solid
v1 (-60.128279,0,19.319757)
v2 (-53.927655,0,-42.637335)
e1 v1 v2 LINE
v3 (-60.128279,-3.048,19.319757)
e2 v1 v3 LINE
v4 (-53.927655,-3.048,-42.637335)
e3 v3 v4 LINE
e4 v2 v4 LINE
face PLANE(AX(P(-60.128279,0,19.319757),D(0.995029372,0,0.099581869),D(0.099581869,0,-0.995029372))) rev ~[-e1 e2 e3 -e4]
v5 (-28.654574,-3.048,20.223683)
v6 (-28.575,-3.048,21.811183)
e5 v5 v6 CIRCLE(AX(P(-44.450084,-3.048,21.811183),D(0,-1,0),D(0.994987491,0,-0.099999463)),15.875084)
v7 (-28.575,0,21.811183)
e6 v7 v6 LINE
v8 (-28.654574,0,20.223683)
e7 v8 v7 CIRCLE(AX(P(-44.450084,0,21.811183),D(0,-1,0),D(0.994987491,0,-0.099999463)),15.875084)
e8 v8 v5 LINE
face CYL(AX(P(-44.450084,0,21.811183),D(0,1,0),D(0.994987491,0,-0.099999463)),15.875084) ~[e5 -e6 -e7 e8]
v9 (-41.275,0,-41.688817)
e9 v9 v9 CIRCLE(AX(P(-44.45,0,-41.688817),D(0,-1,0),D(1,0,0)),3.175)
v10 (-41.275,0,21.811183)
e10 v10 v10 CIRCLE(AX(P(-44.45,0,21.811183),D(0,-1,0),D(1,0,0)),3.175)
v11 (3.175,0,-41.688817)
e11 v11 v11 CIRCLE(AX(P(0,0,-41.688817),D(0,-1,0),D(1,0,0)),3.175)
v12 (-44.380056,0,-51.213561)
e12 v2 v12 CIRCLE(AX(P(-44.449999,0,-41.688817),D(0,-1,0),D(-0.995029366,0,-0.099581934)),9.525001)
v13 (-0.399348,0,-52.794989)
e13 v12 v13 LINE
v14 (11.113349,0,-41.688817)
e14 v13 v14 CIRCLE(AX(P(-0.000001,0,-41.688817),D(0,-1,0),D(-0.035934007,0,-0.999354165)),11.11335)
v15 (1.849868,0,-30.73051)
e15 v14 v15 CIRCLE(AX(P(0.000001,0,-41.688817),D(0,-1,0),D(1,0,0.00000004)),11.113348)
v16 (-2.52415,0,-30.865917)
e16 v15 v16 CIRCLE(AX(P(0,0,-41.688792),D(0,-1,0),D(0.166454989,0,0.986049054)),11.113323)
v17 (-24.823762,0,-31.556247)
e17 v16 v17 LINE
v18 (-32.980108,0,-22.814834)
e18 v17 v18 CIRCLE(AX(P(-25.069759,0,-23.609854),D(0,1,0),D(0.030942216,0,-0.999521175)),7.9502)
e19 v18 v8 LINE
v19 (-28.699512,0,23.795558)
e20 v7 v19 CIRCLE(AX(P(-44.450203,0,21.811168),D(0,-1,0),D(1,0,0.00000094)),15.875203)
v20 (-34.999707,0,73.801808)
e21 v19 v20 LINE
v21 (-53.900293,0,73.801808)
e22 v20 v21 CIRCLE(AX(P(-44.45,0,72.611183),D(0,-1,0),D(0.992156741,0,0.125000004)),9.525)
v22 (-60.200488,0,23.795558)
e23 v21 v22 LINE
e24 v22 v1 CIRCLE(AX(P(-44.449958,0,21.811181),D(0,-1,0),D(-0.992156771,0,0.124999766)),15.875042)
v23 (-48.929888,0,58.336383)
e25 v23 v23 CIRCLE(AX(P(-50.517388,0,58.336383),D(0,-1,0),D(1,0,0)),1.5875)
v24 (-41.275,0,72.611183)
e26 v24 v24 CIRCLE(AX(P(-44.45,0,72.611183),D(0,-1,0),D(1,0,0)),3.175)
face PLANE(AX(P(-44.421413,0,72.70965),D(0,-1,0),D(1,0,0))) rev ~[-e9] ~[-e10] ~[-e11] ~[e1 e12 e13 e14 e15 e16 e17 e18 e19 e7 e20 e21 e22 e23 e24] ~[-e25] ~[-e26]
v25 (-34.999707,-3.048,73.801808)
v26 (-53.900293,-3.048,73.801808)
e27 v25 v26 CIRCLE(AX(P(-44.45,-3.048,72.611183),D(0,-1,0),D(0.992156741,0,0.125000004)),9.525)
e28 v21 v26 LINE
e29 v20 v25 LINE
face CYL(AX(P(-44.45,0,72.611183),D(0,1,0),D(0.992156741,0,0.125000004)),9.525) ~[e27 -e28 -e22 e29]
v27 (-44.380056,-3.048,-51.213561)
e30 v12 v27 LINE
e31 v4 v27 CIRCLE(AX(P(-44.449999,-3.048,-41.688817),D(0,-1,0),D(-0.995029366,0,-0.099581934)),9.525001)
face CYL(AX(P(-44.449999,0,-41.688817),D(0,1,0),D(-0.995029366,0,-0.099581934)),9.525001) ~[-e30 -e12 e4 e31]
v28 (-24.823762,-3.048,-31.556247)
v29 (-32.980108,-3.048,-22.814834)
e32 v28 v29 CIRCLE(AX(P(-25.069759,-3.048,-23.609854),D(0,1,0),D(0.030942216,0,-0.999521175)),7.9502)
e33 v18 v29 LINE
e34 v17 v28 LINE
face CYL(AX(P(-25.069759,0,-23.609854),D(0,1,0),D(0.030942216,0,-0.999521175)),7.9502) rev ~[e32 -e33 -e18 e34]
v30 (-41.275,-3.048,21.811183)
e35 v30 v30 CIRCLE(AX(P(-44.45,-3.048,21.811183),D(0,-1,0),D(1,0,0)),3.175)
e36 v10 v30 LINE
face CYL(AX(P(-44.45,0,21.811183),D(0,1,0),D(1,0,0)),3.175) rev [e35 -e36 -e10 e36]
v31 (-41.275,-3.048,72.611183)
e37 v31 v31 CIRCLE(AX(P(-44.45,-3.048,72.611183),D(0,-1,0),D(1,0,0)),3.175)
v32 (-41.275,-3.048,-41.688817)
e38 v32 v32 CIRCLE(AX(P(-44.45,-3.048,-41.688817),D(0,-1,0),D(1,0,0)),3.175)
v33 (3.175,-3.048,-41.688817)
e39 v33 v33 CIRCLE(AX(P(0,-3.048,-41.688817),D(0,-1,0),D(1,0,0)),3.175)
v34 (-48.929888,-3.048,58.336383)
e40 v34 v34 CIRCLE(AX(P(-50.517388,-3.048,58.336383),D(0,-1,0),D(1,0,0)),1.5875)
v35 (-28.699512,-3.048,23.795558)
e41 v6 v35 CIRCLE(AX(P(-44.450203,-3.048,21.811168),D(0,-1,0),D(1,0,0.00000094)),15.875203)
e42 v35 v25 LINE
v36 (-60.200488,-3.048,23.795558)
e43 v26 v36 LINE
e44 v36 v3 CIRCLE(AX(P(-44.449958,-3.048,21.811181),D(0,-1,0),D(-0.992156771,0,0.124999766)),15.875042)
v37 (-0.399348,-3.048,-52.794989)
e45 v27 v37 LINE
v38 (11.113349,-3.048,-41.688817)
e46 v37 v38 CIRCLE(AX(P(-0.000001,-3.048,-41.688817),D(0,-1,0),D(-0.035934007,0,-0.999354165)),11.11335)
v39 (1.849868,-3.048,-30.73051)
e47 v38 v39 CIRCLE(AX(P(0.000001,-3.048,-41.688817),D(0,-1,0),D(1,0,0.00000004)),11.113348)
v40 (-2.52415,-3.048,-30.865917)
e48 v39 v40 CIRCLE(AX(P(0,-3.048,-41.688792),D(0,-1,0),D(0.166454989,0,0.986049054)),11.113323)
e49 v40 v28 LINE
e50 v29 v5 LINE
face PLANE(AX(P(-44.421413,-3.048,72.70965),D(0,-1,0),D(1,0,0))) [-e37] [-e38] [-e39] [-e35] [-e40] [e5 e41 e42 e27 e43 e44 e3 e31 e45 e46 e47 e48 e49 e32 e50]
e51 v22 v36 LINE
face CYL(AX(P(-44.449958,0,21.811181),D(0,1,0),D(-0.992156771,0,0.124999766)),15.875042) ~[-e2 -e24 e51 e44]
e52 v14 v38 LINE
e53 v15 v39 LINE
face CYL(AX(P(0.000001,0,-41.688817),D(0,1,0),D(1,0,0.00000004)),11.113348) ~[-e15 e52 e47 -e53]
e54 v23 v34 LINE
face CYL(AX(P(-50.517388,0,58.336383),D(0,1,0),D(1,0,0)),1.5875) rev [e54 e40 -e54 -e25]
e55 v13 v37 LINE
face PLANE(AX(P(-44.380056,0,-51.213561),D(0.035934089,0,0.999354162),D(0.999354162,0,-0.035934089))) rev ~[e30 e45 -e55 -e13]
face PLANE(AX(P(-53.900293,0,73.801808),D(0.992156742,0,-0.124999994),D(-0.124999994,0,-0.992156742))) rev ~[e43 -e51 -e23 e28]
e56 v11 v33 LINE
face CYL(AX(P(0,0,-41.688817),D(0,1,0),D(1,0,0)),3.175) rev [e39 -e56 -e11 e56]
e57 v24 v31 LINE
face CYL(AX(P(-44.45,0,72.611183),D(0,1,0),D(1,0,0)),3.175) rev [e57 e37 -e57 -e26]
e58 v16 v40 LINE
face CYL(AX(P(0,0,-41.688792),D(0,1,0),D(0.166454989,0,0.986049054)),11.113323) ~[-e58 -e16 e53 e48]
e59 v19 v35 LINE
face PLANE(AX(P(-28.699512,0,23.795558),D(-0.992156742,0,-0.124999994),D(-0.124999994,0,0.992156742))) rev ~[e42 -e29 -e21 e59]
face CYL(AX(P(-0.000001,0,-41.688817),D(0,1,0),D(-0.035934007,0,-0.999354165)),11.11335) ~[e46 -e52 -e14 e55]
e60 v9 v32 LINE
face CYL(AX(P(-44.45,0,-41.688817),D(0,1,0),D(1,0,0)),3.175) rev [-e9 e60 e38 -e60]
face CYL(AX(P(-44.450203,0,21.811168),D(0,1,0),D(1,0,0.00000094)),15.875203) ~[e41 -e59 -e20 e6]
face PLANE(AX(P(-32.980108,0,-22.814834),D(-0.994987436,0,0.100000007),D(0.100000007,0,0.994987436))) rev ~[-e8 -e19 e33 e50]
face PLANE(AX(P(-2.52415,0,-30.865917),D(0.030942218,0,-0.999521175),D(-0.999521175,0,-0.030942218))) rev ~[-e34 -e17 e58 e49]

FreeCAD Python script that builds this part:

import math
import FreeCAD as App
import Part
import Sketcher
from FreeCAD import Vector
Q = App.Units.Quantity

doc = App.newDocument("Part")
body = doc.addObject("PartDesign::Body", "Body")

sketch1 = body.newObject("Sketcher::SketchObject", "Sketch")
sketch1.AttachmentSupport = (doc.getObject("XZ_Plane"), [""])
sketch1.MapMode = "FlatFace"
sketch1.addGeometry([
    Part.ArcOfCircle(Part.Circle(Vector(-44.45, 72.611183, 0), Vector(0, 0, 1), 9.525), math.radians(7.180756), math.radians(172.819244)),
    Part.LineSegment(Vector(-53.900293, 73.801808, 0), Vector(-60.200488, 23.795558, 0)),
    Part.ArcOfCircle(Part.Circle(Vector(-44.449958, 21.811181, 0), Vector(0, 0, 1), 15.875042), math.radians(172.819258), math.radians(189.029311)),
    Part.LineSegment(Vector(-60.128279, 19.319757, 0), Vector(-53.927655, -42.637335, 0)),
    Part.ArcOfCircle(Part.Circle(Vector(-44.449999, -41.688817, 0), Vector(0, 0, 1), 9.525001), math.radians(-174.284903), math.radians(-89.579265)),
    Part.LineSegment(Vector(-44.380056, -51.213561, 0), Vector(-0.399348, -52.794989, 0)),
    Part.ArcOfCircle(Part.Circle(Vector(-0.000001, -41.688817, 0), Vector(0, 0, 1), 11.11335), math.radians(-92.05931), math.radians(-0.000002)),
    Part.ArcOfCircle(Part.Circle(Vector(0.000001, -41.688817, 0), Vector(0, 0, 1), 11.113348), math.radians(0.000002), math.radians(80.418258)),
    Part.ArcOfCircle(Part.Circle(Vector(0, -41.688792, 0), Vector(0, 0, 1), 11.113323), math.radians(80.418232), math.radians(103.12806)),
    Part.LineSegment(Vector(-2.52415, -30.865917, 0), Vector(-24.823762, -31.556247, 0)),
    Part.ArcOfCircle(Part.Circle(Vector(-25.069759, -23.609854, 0), Vector(0, 0, 1), 7.9502), math.radians(174.260832), math.radians(271.773141)),
    Part.LineSegment(Vector(-32.980108, -22.814834, 0), Vector(-28.654574, 20.223683, 0)),
    Part.ArcOfCircle(Part.Circle(Vector(-44.450084, 21.811183, 0), Vector(0, 0, 1), 15.875084), math.radians(-5.73914), math.radians(0)),
    Part.ArcOfCircle(Part.Circle(Vector(-44.450203, 21.811168, 0), Vector(0, 0, 1), 15.875203), math.radians(0.000054), math.radians(7.180718)),
    Part.LineSegment(Vector(-28.699512, 23.795558, 0), Vector(-34.999707, 73.801808, 0)),
    Part.Circle(Vector(-44.45, -41.688817, 0), Vector(0, 0, 1), 3.175),
    Part.Circle(Vector(0, -41.688817, 0), Vector(0, 0, 1), 3.175),
    Part.Circle(Vector(-44.45, 21.811183, 0), Vector(0, 0, 1), 3.175),
    Part.Circle(Vector(-50.517388, 58.336383, 0), Vector(0, 0, 1), 1.5875),
    Part.Circle(Vector(-44.45, 72.611183, 0), Vector(0, 0, 1), 3.175),
], False)
sketch1.addConstraint([
    Sketcher.Constraint("Coincident", 0, 2, 1, 1),
    Sketcher.Constraint("Coincident", 1, 2, 2, 1),
    Sketcher.Constraint("Coincident", 2, 2, 3, 1),
    Sketcher.Constraint("Coincident", 3, 2, 4, 1),
    Sketcher.Constraint("Coincident", 4, 2, 5, 1),
    Sketcher.Constraint("Coincident", 5, 2, 6, 1),
    Sketcher.Constraint("Coincident", 6, 2, 7, 1),
    Sketcher.Constraint("Coincident", 7, 2, 8, 1),
    Sketcher.Constraint("Coincident", 8, 2, 9, 1),
    Sketcher.Constraint("Coincident", 9, 2, 10, 2),
    Sketcher.Constraint("Coincident", 10, 1, 11, 1),
    Sketcher.Constraint("Coincident", 11, 2, 12, 1),
    Sketcher.Constraint("Coincident", 12, 2, 13, 1),
    Sketcher.Constraint("Coincident", 13, 2, 14, 1),
    Sketcher.Constraint("Coincident", 14, 2, 0, 1),
    Sketcher.Constraint("Coincident", 7, 3, 6, 3),
    Sketcher.Constraint("Coincident", 15, 3, 4, 3),
    Sketcher.Constraint("Coincident", 16, 3, 6, 3),
    Sketcher.Constraint("Coincident", 19, 3, 0, 3),
    Sketcher.Constraint("PointOnObject", 6, 3, -2),
    Sketcher.Constraint("PointOnObject", 8, 3, -2),
    Sketcher.Constraint("Diameter", 15, Q("0.25 in")),
    Sketcher.Constraint("Diameter", 16, Q("0.25 in")),
    Sketcher.Constraint("Diameter", 17, Q("0.25 in")),
    Sketcher.Constraint("Diameter", 19, Q("0.25 in")),
    Sketcher.Constraint("Diameter", 18, Q("0.125 in")),
    Sketcher.Constraint("Radius", 0, Q("0.375 in")),
    Sketcher.Constraint("Radius", 4, Q("0.375 in")),
    Sketcher.Constraint("Radius", 10, Q("0.313 in")),
    Sketcher.Constraint("DistanceY", 2, 3, 0, 3, Q("2.0000001 in")),
    Sketcher.Constraint("DistanceY", 12, 3, 0, 3, Q("2 in")),
    Sketcher.Constraint("DistanceY", 17, 3, 0, 3, Q("2 in")),
    Sketcher.Constraint("DistanceY", 4, 3, 2, 3, Q("2.4999999 in")),
    Sketcher.Constraint("DistanceY", 6, 3, 2, 3, Q("2.4999999 in")),
    Sketcher.Constraint("DistanceX", 0, 3, -1, 1, Q("1.75 in")),
    Sketcher.Constraint("DistanceX", 4, 3, -1, 1, Q("1.75 in")),
    Sketcher.Constraint("DistanceX", 17, 3, -1, 1, Q("1.75 in")),
    Sketcher.Constraint("DistanceX", 12, 2, -1, 1, Q("1.125 in")),
    Sketcher.Constraint("Radius", 2, 15.875042),
    Sketcher.Constraint("Radius", 6, 11.11335),
    Sketcher.Constraint("DistanceX", 2, 3, 10, 3, Q("0.763 in")),
    Sketcher.Constraint("DistanceY", 18, 3, 0, 3, Q("0.562 in")),
    Sketcher.Constraint("DistanceY", 19, 3, 0, 2, Q("0.046875 in")),
    Sketcher.Constraint("DistanceY", 12, 3, 1, 2, Q("0.078125 in")),
    Sketcher.Constraint("DistanceY", 11, 2, 2, 3, Q("0.0624999 in")),
    Sketcher.Constraint("DistanceY", 11, 2, 12, 2, Q("0.0625 in")),
    Sketcher.Constraint("DistanceY", 12, 2, 13, 2, Q("0.078125 in")),
    Sketcher.Constraint("DistanceY", 19, 3, 14, 2, Q("0.046875 in")),
    Sketcher.Constraint("Radius", 8, 11.113323),
    Sketcher.Constraint("Radius", 12, 15.875084),
    Sketcher.Constraint("Radius", 13, 15.875203),
    Sketcher.Constraint("DistanceY", 10, 3, 10, 1, Q("0.0313 in")),
    Sketcher.Constraint("DistanceX", 1, 2, 18, 3, 9.6831),
    Sketcher.Constraint("DistanceY", 2, 2, 1, 2, 4.475801),
    Sketcher.Constraint("DistanceX", 3, 2, 4, 2, 9.547599),
    Sketcher.Constraint("DistanceY", 6, 3, 8, 2, 10.8229),
    Sketcher.Constraint("DistanceY", 3, 2, 10, 1, 19.822501),
    Sketcher.Constraint("Distance", 5, 44.009131),
    Sketcher.Constraint("DistanceY", -1, 1, 2, 3, 21.811181),
    Sketcher.Constraint("DistanceX", 10, 3, -1, 1, 25.069759),
    Sketcher.Constraint("DistanceY", -1, 1, 13, 3, 21.811168),
    Sketcher.Constraint("DistanceX", -1, 1, 7, 2, 1.849868),
    Sketcher.Constraint("DistanceX", 9, 2, -1, 1, 24.823762),
    Sketcher.Constraint("DistanceY", 10, 3, 13, 3, 45.421022),
    Sketcher.Constraint("DistanceY", 6, 2, -1, 1, 41.688817),
])
pad1 = body.newObject("PartDesign::Pad", "Pad")
pad1.Profile = sketch1
pad1.Length = Q("0.12 in")

doc.recompute()
